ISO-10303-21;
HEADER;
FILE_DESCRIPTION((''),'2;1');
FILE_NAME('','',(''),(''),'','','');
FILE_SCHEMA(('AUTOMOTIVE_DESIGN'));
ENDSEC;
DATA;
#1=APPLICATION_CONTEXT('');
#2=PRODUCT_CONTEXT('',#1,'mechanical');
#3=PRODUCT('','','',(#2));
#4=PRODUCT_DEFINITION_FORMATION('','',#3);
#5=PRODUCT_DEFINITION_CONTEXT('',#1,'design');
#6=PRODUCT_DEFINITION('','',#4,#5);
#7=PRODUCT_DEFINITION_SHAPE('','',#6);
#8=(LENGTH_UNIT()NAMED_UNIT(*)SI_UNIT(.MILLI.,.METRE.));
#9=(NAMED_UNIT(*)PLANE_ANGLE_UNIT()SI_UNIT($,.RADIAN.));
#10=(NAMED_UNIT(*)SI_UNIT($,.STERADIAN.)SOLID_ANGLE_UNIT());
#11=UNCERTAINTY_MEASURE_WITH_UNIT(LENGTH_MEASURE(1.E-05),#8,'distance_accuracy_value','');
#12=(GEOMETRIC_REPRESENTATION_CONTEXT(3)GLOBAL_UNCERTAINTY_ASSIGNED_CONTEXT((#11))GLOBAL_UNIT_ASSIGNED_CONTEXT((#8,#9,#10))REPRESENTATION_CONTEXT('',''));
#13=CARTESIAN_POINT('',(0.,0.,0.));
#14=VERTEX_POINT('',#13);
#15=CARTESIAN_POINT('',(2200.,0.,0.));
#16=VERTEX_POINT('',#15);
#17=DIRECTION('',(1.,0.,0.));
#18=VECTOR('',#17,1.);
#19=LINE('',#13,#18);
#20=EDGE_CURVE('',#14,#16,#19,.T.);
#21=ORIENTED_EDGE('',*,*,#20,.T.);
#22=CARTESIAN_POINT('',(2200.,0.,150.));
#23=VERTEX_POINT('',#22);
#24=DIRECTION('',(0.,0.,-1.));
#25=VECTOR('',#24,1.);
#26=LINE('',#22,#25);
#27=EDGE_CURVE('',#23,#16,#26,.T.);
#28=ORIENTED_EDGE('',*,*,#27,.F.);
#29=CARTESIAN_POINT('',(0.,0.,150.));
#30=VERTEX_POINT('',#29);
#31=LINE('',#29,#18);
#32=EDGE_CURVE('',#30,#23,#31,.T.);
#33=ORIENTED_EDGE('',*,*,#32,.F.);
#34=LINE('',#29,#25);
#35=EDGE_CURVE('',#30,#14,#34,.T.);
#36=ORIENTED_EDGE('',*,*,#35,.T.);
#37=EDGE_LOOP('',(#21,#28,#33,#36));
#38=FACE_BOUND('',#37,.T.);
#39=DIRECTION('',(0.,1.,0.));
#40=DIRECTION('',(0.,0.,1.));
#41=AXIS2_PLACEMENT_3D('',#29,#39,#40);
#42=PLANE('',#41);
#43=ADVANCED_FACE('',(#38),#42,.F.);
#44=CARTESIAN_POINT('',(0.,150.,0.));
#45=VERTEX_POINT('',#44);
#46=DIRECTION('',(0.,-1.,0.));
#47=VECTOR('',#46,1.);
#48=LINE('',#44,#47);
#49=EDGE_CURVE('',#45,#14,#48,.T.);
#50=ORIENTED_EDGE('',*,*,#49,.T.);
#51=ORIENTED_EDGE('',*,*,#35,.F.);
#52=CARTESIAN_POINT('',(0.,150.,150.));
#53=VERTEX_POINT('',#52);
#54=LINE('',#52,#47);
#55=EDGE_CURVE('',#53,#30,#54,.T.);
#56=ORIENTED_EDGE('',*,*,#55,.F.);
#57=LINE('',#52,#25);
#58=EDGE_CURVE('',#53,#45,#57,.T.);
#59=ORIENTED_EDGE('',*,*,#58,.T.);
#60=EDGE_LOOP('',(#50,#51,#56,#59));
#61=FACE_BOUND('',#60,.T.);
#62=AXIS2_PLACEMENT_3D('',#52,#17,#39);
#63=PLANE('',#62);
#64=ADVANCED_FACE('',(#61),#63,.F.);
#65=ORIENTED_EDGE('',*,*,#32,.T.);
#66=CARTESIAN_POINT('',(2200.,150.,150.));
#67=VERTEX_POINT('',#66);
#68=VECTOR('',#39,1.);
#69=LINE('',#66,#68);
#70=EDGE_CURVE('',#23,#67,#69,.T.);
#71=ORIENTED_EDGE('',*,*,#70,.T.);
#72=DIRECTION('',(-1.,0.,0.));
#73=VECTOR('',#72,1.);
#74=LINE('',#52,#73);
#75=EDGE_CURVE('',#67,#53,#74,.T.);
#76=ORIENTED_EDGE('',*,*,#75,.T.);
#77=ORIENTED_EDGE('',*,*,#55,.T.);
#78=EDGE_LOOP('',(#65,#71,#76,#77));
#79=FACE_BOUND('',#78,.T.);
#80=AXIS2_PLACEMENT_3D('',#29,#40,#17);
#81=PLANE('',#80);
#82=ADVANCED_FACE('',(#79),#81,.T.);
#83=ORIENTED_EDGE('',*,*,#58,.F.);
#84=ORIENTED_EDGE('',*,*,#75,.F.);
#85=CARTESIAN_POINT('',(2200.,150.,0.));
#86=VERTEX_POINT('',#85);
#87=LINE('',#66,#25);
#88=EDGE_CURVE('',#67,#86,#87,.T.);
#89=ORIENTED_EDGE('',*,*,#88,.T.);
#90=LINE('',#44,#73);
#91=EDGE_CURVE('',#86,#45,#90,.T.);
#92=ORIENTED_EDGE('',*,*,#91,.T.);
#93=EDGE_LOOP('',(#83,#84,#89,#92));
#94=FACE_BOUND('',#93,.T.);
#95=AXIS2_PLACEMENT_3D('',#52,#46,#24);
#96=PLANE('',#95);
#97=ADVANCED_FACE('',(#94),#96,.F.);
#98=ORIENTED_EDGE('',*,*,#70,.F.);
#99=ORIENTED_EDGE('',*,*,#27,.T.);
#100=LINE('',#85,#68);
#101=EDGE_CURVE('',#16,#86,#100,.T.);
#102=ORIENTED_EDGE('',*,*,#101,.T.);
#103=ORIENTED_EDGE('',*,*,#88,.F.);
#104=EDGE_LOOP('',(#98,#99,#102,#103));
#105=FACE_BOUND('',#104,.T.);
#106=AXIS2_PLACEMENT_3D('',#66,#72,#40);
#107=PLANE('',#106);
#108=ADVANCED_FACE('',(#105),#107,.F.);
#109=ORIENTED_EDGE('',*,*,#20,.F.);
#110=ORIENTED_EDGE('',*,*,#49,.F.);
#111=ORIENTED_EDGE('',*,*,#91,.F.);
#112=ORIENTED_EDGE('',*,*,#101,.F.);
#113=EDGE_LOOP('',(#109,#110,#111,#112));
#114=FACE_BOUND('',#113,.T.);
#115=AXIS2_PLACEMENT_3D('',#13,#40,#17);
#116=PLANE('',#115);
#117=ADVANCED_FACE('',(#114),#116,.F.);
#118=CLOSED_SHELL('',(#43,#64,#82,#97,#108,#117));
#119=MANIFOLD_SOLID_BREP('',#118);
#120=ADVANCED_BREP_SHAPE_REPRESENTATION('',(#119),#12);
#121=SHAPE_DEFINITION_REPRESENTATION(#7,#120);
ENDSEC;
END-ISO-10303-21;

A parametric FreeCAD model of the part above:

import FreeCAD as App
import Part
import Sketcher

doc = App.newDocument("Part")
body = doc.addObject("PartDesign::Body", "Body")

# Sketch on XY plane
sketch1 = body.newObject("Sketcher::SketchObject", "Sketch")
sketch1.AttachmentSupport = (doc.getObject("XY_Plane"), [""])
sketch1.MapMode = "FlatFace"
sketch1.addGeometry(Part.LineSegment(App.Vector(0, 150, 0), App.Vector(0, 0, 0)), False)
sketch1.addGeometry(Part.LineSegment(App.Vector(0, 0, 0), App.Vector(2200, 0, 0)), False)
sketch1.addGeometry(Part.LineSegment(App.Vector(2200, 0, 0), App.Vector(2200, 150, 0)), False)
sketch1.addGeometry(Part.LineSegment(App.Vector(2200, 150, 0), App.Vector(0, 150, 0)), False)
sketch1.addConstraint(Sketcher.Constraint("Coincident", 0, 2, 1, 1))
sketch1.addConstraint(Sketcher.Constraint("Coincident", 1, 2, 2, 1))
sketch1.addConstraint(Sketcher.Constraint("Coincident", 2, 2, 3, 1))
sketch1.addConstraint(Sketcher.Constraint("Coincident", 3, 2, 0, 1))
sketch1.addConstraint(Sketcher.Constraint("Vertical", 0))
sketch1.addConstraint(Sketcher.Constraint("Horizontal", 1))
sketch1.addConstraint(Sketcher.Constraint("Vertical", 2))
sketch1.addConstraint(Sketcher.Constraint("Horizontal", 3))
sketch1.addConstraint(Sketcher.Constraint("Coincident", 0, 2, -1, 1))
sketch1.addConstraint(Sketcher.Constraint("DistanceX", 1, 1, 1, 2, 2200.0))
sketch1.addConstraint(Sketcher.Constraint("DistanceY", 0, 2, 0, 1, 150.0))
pad1 = body.newObject("PartDesign::Pad", "Pad")
pad1.Profile = sketch1
pad1.Length = 150

doc.recompute()
